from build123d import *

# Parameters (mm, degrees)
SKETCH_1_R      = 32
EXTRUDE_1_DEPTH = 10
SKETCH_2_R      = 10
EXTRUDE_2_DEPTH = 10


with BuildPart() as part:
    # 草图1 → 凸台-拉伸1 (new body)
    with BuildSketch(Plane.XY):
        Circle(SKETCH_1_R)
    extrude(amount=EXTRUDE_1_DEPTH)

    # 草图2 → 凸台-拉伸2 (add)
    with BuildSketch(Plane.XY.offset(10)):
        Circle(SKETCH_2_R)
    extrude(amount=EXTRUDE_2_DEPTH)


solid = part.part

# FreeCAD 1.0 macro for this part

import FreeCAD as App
import Part
import Sketcher

doc = App.newDocument("Part")
params = doc.addObject("Spreadsheet::Sheet", "Params")
for row, (alias, value) in enumerate([
    ("sketch1_diameter", "64 mm"),
    ("pad1_length", "10 mm"),
    ("sketch2_diameter", "20 mm"),
    ("pad2_length", "10 mm"),
], start=1):
    params.set(f"A{row}", alias)
    params.set(f"B{row}", "=" + value)
    params.setAlias(f"B{row}", alias)

body = doc.addObject("PartDesign::Body", "Body")

sketch1 = doc.addObject("Sketcher::SketchObject", "Sketch")
body.addObject(sketch1)
sketch1.AttachmentSupport = (doc.XY_Plane, [""])
sketch1.MapMode = "FlatFace"
sketch1.addGeometry(Part.Circle(App.Vector(0, 0, 0), App.Vector(0, 0, 1), 32), False)
sketch1.addConstraint(Sketcher.Constraint("Coincident", 0, 3, -1, 1))
sketch1.addConstraint(Sketcher.Constraint("Diameter", 0, 64.0))
sketch1.setExpression("Constraints[1]", "Params.sketch1_diameter")
pad1 = doc.addObject("PartDesign::Pad", "Pad")
body.addObject(pad1)
pad1.Profile = sketch1
pad1.setExpression("Length", "Params.pad1_length")

sketch2 = doc.addObject("Sketcher::SketchObject", "Sketch001")
body.addObject(sketch2)
sketch2.AttachmentSupport = (doc.XY_Plane, [""])
sketch2.MapMode = "FlatFace"
sketch2.AttachmentOffset = App.Placement(App.Vector(0, 0, 10), App.Rotation())
sketch2.addGeometry(Part.Circle(App.Vector(0, 0, 0), App.Vector(0, 0, 1), 10), False)
sketch2.addConstraint(Sketcher.Constraint("Coincident", 0, 3, -1, 1))
sketch2.addConstraint(Sketcher.Constraint("Diameter", 0, 20.0))
sketch2.setExpression("Constraints[1]", "Params.sketch2_diameter")
pad2 = doc.addObject("PartDesign::Pad", "Pad001")
body.addObject(pad2)
pad2.Profile = sketch2
pad2.setExpression("Length", "Params.pad2_length")

doc.recompute()
